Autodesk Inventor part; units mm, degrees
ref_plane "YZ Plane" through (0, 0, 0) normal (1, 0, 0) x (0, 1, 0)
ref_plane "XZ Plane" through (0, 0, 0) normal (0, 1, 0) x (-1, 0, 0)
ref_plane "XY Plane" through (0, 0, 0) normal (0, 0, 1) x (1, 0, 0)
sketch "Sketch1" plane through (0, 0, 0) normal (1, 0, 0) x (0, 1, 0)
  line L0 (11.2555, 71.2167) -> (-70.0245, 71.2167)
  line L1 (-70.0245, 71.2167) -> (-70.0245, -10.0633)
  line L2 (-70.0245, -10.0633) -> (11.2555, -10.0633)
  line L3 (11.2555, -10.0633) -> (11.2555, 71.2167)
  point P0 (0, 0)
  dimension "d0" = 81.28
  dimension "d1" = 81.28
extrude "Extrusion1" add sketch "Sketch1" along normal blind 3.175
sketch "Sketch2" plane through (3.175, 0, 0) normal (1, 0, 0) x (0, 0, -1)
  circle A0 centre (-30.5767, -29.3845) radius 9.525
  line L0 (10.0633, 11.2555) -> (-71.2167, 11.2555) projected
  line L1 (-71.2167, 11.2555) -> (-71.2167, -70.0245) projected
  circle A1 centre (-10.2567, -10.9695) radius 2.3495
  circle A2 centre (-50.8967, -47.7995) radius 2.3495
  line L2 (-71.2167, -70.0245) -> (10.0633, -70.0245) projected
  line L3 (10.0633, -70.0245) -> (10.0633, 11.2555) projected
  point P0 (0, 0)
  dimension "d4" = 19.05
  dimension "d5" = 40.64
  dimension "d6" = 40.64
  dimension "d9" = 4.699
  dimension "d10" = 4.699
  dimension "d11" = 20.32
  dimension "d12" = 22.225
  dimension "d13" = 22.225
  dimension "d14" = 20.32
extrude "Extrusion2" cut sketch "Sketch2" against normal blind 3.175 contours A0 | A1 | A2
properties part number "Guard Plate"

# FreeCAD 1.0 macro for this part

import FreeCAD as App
import Part
import Sketcher

V = App.Vector
Q = App.Units.Quantity


def add_polygon(sketch, points):
    """Adds a closed chain of lines whose ends are joined by coincident constraints."""
    first, n = sketch.GeometryCount, len(points)
    for a, b in zip(points, points[1:] + points[:1]):
        sketch.addGeometry(Part.LineSegment(App.Vector(*a, 0), App.Vector(*b, 0)), False)
    for i in range(n):
        sketch.addConstraint(Sketcher.Constraint("Coincident", first + i, 2, first + (i + 1) % n, 1))

doc = App.newDocument("Part")
body = doc.addObject("PartDesign::Body", "Body")

sketch1 = doc.addObject("Sketcher::SketchObject", "Sketch")
body.addObject(sketch1)
sketch1.AttachmentSupport = (doc.YZ_Plane, [""])
sketch1.MapMode = "FlatFace"
add_polygon(sketch1, [(11.2555, -10.0633), (11.2555, 71.2167), (-70.0245, 71.2167), (-70.0245, -10.0633)])
sketch1.addConstraint([
    Sketcher.Constraint("Vertical", 0),
    Sketcher.Constraint("Horizontal", 1),
    Sketcher.Constraint("Vertical", 2),
    Sketcher.Constraint("Horizontal", 3),
    Sketcher.Constraint("Equal", 3, 0),
    Sketcher.Constraint("DistanceX", 1, 2, 1, 1, Q("3.2 in")),
    Sketcher.Constraint("DistanceY", -1, 1, 0, 2, Q("2.8038 in")),
    Sketcher.Constraint("DistanceX", -1, 1, 0, 2, 11.2555),
])
pad1 = doc.addObject("PartDesign::Pad", "Pad")
body.addObject(pad1)
pad1.Profile = sketch1
pad1.Length = Q("0.125 in")

sketch2 = doc.addObject("Sketcher::SketchObject", "Sketch001")
body.addObject(sketch2)
sketch2.AttachmentSupport = (doc.YZ_Plane, [""])
sketch2.MapMode = "FlatFace"
sketch2.AttachmentOffset = App.Placement(V(0, 0, 0.125 * 25.4), App.Rotation())
sketch2.addGeometry([
    Part.Circle(V(-29.3845, 30.5767, 0), V(0, 0, 1), 9.525),
    Part.Circle(V(-10.9695, 10.2567, 0), V(0, 0, 1), 2.3495),
    Part.Circle(V(-47.7995, 50.8967, 0), V(0, 0, 1), 2.3495),
], False)
sketch2.addConstraint([
    Sketcher.Constraint("Equal", 1, 2),
    Sketcher.Constraint("Diameter", 0, Q("0.75 in")),
    Sketcher.Constraint("Diameter", 1, Q("0.185 in")),
    Sketcher.Constraint("DistanceY", 1, 3, 0, 3, Q("0.8 in")),
    Sketcher.Constraint("DistanceY", 0, 3, 2, 3, Q("0.8 in")),
    Sketcher.Constraint("DistanceX", 2, 3, 1, 3, Q("1.45 in")),
    Sketcher.Constraint("DistanceX", 0, 3, 1, 3, Q("0.725 in")),
    Sketcher.Constraint("DistanceY", -1, 1, 0, 3, Q("1.2038 in")),
    Sketcher.Constraint("DistanceX", 0, 3, -1, 1, 29.3845),
])
pocket1 = doc.addObject("PartDesign::Pocket", "Pocket")
body.addObject(pocket1)
pocket1.Profile = sketch2
pocket1.Length = Q("0.125 in")

doc.recompute()
